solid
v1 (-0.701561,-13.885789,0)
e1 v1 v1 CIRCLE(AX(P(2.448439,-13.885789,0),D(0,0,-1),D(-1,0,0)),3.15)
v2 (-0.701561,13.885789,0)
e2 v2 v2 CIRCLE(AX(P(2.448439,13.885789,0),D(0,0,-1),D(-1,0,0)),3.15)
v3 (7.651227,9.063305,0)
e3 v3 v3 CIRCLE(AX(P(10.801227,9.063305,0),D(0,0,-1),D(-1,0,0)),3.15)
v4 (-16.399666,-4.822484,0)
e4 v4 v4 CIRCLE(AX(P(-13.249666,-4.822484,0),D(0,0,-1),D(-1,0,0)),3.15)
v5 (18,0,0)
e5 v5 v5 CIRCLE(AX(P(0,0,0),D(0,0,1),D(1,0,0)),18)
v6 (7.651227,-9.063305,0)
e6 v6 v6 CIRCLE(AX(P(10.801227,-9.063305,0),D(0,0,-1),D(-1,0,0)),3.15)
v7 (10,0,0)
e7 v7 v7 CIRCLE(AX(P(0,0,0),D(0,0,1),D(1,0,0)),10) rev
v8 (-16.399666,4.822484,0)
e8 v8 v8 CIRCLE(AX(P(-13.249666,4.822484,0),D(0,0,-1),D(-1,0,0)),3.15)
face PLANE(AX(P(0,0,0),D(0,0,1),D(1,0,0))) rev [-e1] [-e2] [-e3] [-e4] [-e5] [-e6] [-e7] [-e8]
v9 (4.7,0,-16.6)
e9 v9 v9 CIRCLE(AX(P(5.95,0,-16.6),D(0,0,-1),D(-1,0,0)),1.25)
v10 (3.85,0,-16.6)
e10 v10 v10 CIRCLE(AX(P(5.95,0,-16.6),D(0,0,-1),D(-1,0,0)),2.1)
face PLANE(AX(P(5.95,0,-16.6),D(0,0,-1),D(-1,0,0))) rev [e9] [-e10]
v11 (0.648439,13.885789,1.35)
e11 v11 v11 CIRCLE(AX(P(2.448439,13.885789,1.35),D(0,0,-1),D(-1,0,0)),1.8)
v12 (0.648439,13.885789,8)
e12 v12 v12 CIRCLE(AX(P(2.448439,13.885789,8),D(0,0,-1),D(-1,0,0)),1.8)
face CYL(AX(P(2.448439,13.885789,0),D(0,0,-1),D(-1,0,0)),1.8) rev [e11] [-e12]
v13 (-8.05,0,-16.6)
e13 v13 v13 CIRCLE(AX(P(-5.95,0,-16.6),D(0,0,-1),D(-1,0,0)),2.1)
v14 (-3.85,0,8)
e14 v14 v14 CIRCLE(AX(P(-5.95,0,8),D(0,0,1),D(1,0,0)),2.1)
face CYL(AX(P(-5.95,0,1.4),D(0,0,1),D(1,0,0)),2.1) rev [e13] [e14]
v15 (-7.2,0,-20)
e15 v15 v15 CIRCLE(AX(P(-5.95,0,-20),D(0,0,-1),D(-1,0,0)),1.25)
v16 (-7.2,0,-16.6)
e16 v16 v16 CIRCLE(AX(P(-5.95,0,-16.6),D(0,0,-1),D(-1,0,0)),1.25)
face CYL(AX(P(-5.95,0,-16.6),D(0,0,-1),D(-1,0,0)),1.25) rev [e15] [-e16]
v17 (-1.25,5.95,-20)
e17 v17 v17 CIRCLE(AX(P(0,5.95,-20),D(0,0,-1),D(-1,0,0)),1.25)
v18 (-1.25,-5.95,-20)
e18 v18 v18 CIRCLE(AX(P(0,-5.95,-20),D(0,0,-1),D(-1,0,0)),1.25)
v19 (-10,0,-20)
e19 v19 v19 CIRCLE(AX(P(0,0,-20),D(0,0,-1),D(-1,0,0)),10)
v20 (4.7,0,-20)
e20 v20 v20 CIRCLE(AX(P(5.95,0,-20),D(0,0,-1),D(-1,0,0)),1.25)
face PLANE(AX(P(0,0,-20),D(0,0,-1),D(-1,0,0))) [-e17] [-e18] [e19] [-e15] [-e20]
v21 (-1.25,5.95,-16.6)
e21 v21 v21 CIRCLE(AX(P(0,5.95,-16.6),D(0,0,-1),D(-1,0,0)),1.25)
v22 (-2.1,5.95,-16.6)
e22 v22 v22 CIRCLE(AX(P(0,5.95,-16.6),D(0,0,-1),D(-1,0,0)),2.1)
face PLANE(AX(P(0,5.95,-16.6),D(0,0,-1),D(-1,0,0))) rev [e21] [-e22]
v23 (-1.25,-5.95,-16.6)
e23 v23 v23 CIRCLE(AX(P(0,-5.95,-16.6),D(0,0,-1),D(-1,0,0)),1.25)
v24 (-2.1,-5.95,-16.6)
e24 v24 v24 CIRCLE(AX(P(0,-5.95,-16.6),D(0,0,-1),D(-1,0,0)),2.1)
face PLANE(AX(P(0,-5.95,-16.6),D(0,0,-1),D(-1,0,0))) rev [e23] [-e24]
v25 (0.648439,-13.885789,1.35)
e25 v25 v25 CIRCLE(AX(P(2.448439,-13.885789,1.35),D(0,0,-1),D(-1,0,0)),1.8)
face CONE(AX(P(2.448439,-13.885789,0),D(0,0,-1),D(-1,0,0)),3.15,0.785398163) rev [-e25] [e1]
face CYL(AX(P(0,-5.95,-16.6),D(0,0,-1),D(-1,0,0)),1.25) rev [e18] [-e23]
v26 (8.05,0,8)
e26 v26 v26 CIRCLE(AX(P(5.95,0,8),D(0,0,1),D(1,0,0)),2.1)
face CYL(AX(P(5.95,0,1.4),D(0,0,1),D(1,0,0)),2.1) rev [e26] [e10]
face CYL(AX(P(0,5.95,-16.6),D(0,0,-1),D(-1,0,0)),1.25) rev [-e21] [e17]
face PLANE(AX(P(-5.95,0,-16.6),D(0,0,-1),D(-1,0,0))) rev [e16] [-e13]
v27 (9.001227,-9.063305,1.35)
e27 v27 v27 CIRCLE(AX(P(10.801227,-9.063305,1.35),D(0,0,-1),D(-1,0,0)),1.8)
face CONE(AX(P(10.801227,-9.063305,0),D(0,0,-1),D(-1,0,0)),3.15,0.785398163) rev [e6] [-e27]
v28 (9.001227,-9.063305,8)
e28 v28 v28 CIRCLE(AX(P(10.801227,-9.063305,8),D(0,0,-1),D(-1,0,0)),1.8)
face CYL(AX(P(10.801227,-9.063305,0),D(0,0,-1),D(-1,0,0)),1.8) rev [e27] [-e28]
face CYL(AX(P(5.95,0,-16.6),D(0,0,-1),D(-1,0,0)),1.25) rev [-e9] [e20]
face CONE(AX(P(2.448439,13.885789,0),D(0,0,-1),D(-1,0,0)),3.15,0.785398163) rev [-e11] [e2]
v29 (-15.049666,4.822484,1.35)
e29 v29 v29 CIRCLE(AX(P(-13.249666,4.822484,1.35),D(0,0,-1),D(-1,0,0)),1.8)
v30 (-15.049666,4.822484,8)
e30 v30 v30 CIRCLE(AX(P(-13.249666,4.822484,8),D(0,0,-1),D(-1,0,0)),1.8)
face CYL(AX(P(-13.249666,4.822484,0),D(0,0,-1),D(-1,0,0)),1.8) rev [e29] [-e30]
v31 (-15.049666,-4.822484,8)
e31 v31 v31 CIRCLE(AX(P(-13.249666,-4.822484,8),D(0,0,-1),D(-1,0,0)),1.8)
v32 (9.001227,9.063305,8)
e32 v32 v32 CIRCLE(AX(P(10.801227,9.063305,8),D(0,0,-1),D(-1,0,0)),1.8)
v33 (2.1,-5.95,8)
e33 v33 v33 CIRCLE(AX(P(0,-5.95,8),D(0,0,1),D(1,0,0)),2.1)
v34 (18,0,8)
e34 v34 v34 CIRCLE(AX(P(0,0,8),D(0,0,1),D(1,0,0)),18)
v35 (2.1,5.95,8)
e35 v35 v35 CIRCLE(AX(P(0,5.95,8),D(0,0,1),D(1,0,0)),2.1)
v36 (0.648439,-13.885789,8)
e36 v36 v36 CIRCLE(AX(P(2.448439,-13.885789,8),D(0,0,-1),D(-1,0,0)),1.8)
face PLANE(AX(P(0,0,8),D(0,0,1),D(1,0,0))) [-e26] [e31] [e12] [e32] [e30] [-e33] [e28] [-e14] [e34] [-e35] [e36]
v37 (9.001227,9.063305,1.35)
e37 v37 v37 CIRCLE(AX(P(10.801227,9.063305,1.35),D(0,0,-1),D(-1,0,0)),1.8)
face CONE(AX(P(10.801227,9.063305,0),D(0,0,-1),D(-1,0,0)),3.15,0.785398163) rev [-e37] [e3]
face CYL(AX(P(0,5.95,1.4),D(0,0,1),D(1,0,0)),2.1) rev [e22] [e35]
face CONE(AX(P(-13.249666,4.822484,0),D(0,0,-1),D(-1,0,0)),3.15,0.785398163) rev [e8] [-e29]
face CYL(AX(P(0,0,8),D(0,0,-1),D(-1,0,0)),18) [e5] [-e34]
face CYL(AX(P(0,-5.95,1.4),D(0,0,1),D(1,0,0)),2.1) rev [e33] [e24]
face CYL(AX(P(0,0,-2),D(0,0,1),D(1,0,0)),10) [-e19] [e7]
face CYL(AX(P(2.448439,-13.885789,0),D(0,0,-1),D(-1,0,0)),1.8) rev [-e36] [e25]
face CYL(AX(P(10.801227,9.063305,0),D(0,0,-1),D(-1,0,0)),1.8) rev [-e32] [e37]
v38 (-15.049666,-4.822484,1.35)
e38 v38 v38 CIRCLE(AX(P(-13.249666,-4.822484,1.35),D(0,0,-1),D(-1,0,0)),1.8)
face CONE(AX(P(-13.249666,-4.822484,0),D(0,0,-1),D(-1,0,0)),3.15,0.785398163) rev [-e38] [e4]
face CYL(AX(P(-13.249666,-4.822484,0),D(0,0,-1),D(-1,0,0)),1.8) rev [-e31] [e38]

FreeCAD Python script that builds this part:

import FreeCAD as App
import Part
import Sketcher
from FreeCAD import Vector
Q = App.Units.Quantity

doc = App.newDocument("Part")
body = doc.addObject("PartDesign::Body", "Body")

# Sketch on XY plane
sketch1 = body.newObject("Sketcher::SketchObject", "Sketch")
sketch1.AttachmentSupport = (doc.getObject("XY_Plane"), [""])
sketch1.MapMode = "FlatFace"
sketch1.addGeometry([
    Part.Circle(Vector(0, 0, 0), Vector(0, 0, 1), 18),  # 0
    Part.Circle(Vector(-13.2, -4.8, 0), Vector(0, 0, 1), 1.6),  # 1
    Part.Circle(Vector(2.4, -13.9, 0), Vector(0, 0, 1), 1.6),  # 2
    Part.Circle(Vector(10.8, -9.1, 0), Vector(0, 0, 1), 1.6),  # 3
    Part.Circle(Vector(0, -6, 0), Vector(0, 0, 1), 1.3),  # 4
    Part.Circle(Vector(-13.2, 4.8, 0), Vector(0, 0, 1), 1.6),  # 5
    Part.Circle(Vector(-6, 0, 0), Vector(0, 0, 1), 1.3),  # 6
    Part.Circle(Vector(0, 6, 0), Vector(0, 0, 1), 1.3),  # 7
    Part.Circle(Vector(6, 0, 0), Vector(0, 0, 1), 1.3),  # 8
    Part.Circle(Vector(2.4, 13.9, 0), Vector(0, 0, 1), 1.6),  # 9
    Part.Circle(Vector(10.8, 9.1, 0), Vector(0, 0, 1), 1.6),  # 10
], False)
sketch1.addConstraint([
    Sketcher.Constraint("Coincident", 0, 3, -1, 1),
    Sketcher.Constraint("Equal", 1, 2),
    Sketcher.Constraint("Equal", 2, 3),
    Sketcher.Constraint("Equal", 3, 5),
    Sketcher.Constraint("Equal", 4, 6),
    Sketcher.Constraint("Equal", 6, 7),
    Sketcher.Constraint("Equal", 7, 8),
    Sketcher.Constraint("Equal", 5, 9),
    Sketcher.Constraint("Equal", 9, 10),
    Sketcher.Constraint("Symmetric", 4, 3, 7, 3, -1, 1),
    Sketcher.Constraint("Symmetric", 6, 3, 8, 3, -1, 1),
    Sketcher.Constraint("Symmetric", 1, 3, 5, 3, -1),
    Sketcher.Constraint("Symmetric", 2, 3, 9, 3, -1),
    Sketcher.Constraint("Symmetric", 3, 3, 10, 3, -1),
    Sketcher.Constraint("PointOnObject", 4, 3, -2),
    Sketcher.Constraint("PointOnObject", 6, 3, -1),
    Sketcher.Constraint("Diameter", 0, Q("36 mm")),
    Sketcher.Constraint("Diameter", 1, Q("3.2 mm")),
    Sketcher.Constraint("Diameter", 4, Q("2.6 mm")),
    Sketcher.Constraint("DistanceY", 4, 3, 7, 3, Q("11.9 mm")),
    Sketcher.Constraint("DistanceX", 6, 3, 8, 3, Q("11.9 mm")),
    Sketcher.Constraint("DistanceX", -1, 1, 2, 3, Q("2.448439 mm")),
    Sketcher.Constraint("DistanceY", 2, 3, -1, 1, Q("13.885789 mm")),
    Sketcher.Constraint("DistanceY", 3, 3, 1, 3, Q("4.240821 mm")),
    Sketcher.Constraint("DistanceY", 1, 3, 5, 3, Q("9.644968 mm")),
    Sketcher.Constraint("DistanceX", 1, 3, -1, 1, Q("13.249666 mm")),
    Sketcher.Constraint("DistanceX", -1, 1, 3, 3, Q("10.801227 mm")),
])
pad1 = body.newObject("PartDesign::Pad", "Pad")
pad1.Profile = sketch1
pad1.Length = 8

# Sketch on XY plane
sketch2 = body.newObject("Sketcher::SketchObject", "Sketch001")
sketch2.AttachmentSupport = (doc.getObject("XY_Plane"), [""])
sketch2.MapMode = "FlatFace"
sketch2.AttachmentOffset = App.Placement(Vector(0, 0, 8), App.Rotation())
sketch2.addGeometry([
    Part.Circle(Vector(0, 6, 0), Vector(0, 0, 1), 2.1),
    Part.Circle(Vector(0, -6, 0), Vector(0, 0, 1), 2.1),
    Part.Circle(Vector(6, 0, 0), Vector(0, 0, 1), 2.1),
    Part.Circle(Vector(-6, 0, 0), Vector(0, 0, 1), 2.1),
], False)
sketch2.addConstraint([
    Sketcher.Constraint("Equal", 0, 1),
    Sketcher.Constraint("Equal", 1, 2),
    Sketcher.Constraint("Equal", 2, 3),
    Sketcher.Constraint("Symmetric", 0, 3, 1, 3, -1, 1),
    Sketcher.Constraint("Symmetric", 2, 3, 3, 3, -1, 1),
    Sketcher.Constraint("PointOnObject", 0, 3, -2),
    Sketcher.Constraint("PointOnObject", 2, 3, -1),
    Sketcher.Constraint("Diameter", 0, Q("4.2 mm")),
    Sketcher.Constraint("DistanceY", 1, 3, 0, 3, Q("11.9 mm")),
    Sketcher.Constraint("DistanceX", 3, 3, 2, 3, Q("11.9 mm")),
])
pocket1 = body.newObject("PartDesign::Pocket", "Pocket")
pocket1.Profile = sketch2
pocket1.Length = 6.6

# Sketch on XY plane
sketch3 = body.newObject("Sketcher::SketchObject", "Sketch002")
sketch3.AttachmentSupport = (doc.getObject("XY_Plane"), [""])
sketch3.MapMode = "FlatFace"
sketch3.addGeometry([
    Part.Circle(Vector(2.4, 13.9, 0), Vector(0, 0, 1), 1.8),  # 0
    Part.Circle(Vector(-13.2, 4.8, 0), Vector(0, 0, 1), 1.8),  # 1
    Part.Circle(Vector(-13.2, -4.8, 0), Vector(0, 0, 1), 1.8),  # 2
    Part.Circle(Vector(2.4, -13.9, 0), Vector(0, 0, 1), 1.8),  # 3
    Part.Circle(Vector(10.8, -9.1, 0), Vector(0, 0, 1), 1.8),  # 4
    Part.Circle(Vector(10.8, 9.1, 0), Vector(0, 0, 1), 1.8),  # 5
], False)
sketch3.addConstraint([
    Sketcher.Constraint("Equal", 0, 1),
    Sketcher.Constraint("Equal", 1, 2),
    Sketcher.Constraint("Equal", 2, 3),
    Sketcher.Constraint("Equal", 3, 4),
    Sketcher.Constraint("Equal", 4, 5),
    Sketcher.Constraint("Symmetric", 1, 3, 2, 3, -1),
    Sketcher.Constraint("Symmetric", 0, 3, 3, 3, -1),
    Sketcher.Constraint("Symmetric", 4, 3, 5, 3, -1),
    Sketcher.Constraint("Diameter", 0, Q("3.6 mm")),
    Sketcher.Constraint("DistanceX", -1, 1, 0, 3, Q("2.448439 mm")),
    Sketcher.Constraint("DistanceY", -1, 1, 0, 3, Q("13.885789 mm")),
    Sketcher.Constraint("DistanceY", 2, 3, 1, 3, Q("9.644968 mm")),
    Sketcher.Constraint("DistanceY", 4, 3, 2, 3, Q("4.240821 mm")),
    Sketcher.Constraint("DistanceX", 1, 3, -1, 1, Q("13.249666 mm")),
    Sketcher.Constraint("DistanceX", -1, 1, 4, 3, Q("10.801227 mm")),
])
doc.recompute()
hole = body.newObject("PartDesign::Hole", "Hole")
hole.Profile = sketch3
hole.ThreadType = "None"
hole.Diameter = 3.6
hole.DepthType = "ThroughAll"
hole.HoleCutType = "Countersink"
hole.HoleCutDiameter = 6.3
hole.HoleCutCountersinkAngle = 90
hole.Reversed = True

# Sketch on XY plane
sketch4 = body.newObject("Sketcher::SketchObject", "Sketch003")
sketch4.AttachmentSupport = (doc.getObject("XY_Plane"), [""])
sketch4.MapMode = "FlatFace"
sketch4.AttachmentOffset = App.Placement(Vector(0, 0, -2), App.Rotation())
sketch4.addGeometry([
    Part.Circle(Vector(0, 0, 0), Vector(0, 0, 1), 10),  # 0
    Part.Circle(Vector(0, 6, 0), Vector(0, 0, 1), 1.3),  # 1
    Part.Circle(Vector(-6, 0, 0), Vector(0, 0, 1), 1.3),  # 2
    Part.Circle(Vector(0, -6, 0), Vector(0, 0, 1), 1.3),  # 3
    Part.Circle(Vector(6, 0, 0), Vector(0, 0, 1), 1.3),  # 4
], False)
sketch4.addConstraint([
    Sketcher.Constraint("Coincident", 0, 3, -1, 1),
    Sketcher.Constraint("Equal", 1, 2),
    Sketcher.Constraint("Equal", 2, 3),
    Sketcher.Constraint("Equal", 3, 4),
    Sketcher.Constraint("Symmetric", 1, 3, 3, 3, -1, 1),
    Sketcher.Constraint("Symmetric", 2, 3, 4, 3, -1, 1),
    Sketcher.Constraint("PointOnObject", 1, 3, -2),
    Sketcher.Constraint("PointOnObject", 2, 3, -1),
    Sketcher.Constraint("Diameter", 0, Q("20 mm")),
    Sketcher.Constraint("Diameter", 1, Q("2.6 mm")),
    Sketcher.Constraint("DistanceY", 3, 3, 1, 3, Q("11.9 mm")),
    Sketcher.Constraint("DistanceX", 2, 3, 4, 3, Q("11.9 mm")),
])
pad2 = body.newObject("PartDesign::Pad", "Pad001")
pad2.Profile = sketch4
pad2.Length = 2

# Sketch on XY plane
sketch5 = body.newObject("Sketcher::SketchObject", "Sketch004")
sketch5.AttachmentSupport = (doc.getObject("XY_Plane"), [""])
sketch5.MapMode = "FlatFace"
sketch5.AttachmentOffset = App.Placement(Vector(0, 0, -2), App.Rotation())
sketch5.addGeometry([
    Part.Circle(Vector(0, 0, 0), Vector(0, 0, 1), 10),  # 0
    Part.Circle(Vector(-6, 0, 0), Vector(0, 0, 1), 2.1),  # 1
    Part.Circle(Vector(0, 6, 0), Vector(0, 0, 1), 2.1),  # 2
    Part.Circle(Vector(0, -6, 0), Vector(0, 0, 1), 2.1),  # 3
    Part.Circle(Vector(6, 0, 0), Vector(0, 0, 1), 2.1),  # 4
], False)
sketch5.addConstraint([
    Sketcher.Constraint("Coincident", 0, 3, -1, 1),
    Sketcher.Constraint("Equal", 1, 2),
    Sketcher.Constraint("Equal", 2, 3),
    Sketcher.Constraint("Equal", 3, 4),
    Sketcher.Constraint("Symmetric", 2, 3, 3, 3, -1, 1),
    Sketcher.Constraint("Symmetric", 1, 3, 4, 3, -1, 1),
    Sketcher.Constraint("PointOnObject", 1, 3, -1),
    Sketcher.Constraint("PointOnObject", 2, 3, -2),
    Sketcher.Constraint("Diameter", 0, Q("20 mm")),
    Sketcher.Constraint("Diameter", 1, Q("4.2 mm")),
    Sketcher.Constraint("DistanceY", 3, 3, 2, 3, Q("11.9 mm")),
    Sketcher.Constraint("DistanceX", 1, 3, 4, 3, Q("11.9 mm")),
])
pad3 = body.newObject("PartDesign::Pad", "Pad002")
pad3.Profile = sketch5
pad3.Length = 18
pad3.Reversed = True

# Sketch on XY plane
sketch6 = body.newObject("Sketcher::SketchObject", "Sketch005")
sketch6.AttachmentSupport = (doc.getObject("XY_Plane"), [""])
sketch6.MapMode = "FlatFace"
sketch6.AttachmentOffset = App.Placement(Vector(0, 0, -16.6), App.Rotation())
sketch6.addGeometry([
    Part.Circle(Vector(-6, 0, 0), Vector(0, 0, 1), 2.1),  # 0
    Part.Circle(Vector(-6, 0, 0), Vector(0, 0, 1), 1.2),  # 1
    Part.Circle(Vector(0, -6, 0), Vector(0, 0, 1), 2.1),  # 2
    Part.Circle(Vector(0, -6, 0), Vector(0, 0, 1), 1.2),  # 3
    Part.Circle(Vector(6, 0, 0), Vector(0, 0, 1), 2.1),  # 4
    Part.Circle(Vector(6, 0, 0), Vector(0, 0, 1), 1.2),  # 5
    Part.Circle(Vector(0, 6, 0), Vector(0, 0, 1), 2.1),  # 6
    Part.Circle(Vector(0, 6, 0), Vector(0, 0, 1), 1.2),  # 7
], False)
sketch6.addConstraint([
    Sketcher.Constraint("Coincident", 1, 3, 0, 3),
    Sketcher.Constraint("Coincident", 3, 3, 2, 3),
    Sketcher.Constraint("Coincident", 5, 3, 4, 3),
    Sketcher.Constraint("Coincident", 7, 3, 6, 3),
    Sketcher.Constraint("Equal", 0, 2),
    Sketcher.Constraint("Equal", 1, 3),
    Sketcher.Constraint("Equal", 2, 4),
    Sketcher.Constraint("Equal", 3, 5),
    Sketcher.Constraint("Equal", 4, 6),
    Sketcher.Constraint("Equal", 5, 7),
    Sketcher.Constraint("Symmetric", 0, 3, 4, 3, -1, 1),
    Sketcher.Constraint("Symmetric", 2, 3, 6, 3, -1, 1),
    Sketcher.Constraint("PointOnObject", 0, 3, -1),
    Sketcher.Constraint("PointOnObject", 2, 3, -2),
    Sketcher.Constraint("Diameter", 0, Q("4.2 mm")),
    Sketcher.Constraint("Diameter", 1, Q("2.5 mm")),
    Sketcher.Constraint("DistanceX", 0, 3, 4, 3, Q("11.9 mm")),
    Sketcher.Constraint("DistanceY", 2, 3, 6, 3, Q("11.9 mm")),
])
pad4 = body.newObject("PartDesign::Pad", "Pad003")
pad4.Profile = sketch6
pad4.Length = 3.4
pad4.Reversed = True

# Sketch on XY plane
sketch7 = body.newObject("Sketcher::SketchObject", "Sketch006")
sketch7.AttachmentSupport = (doc.getObject("XY_Plane"), [""])
sketch7.MapMode = "FlatFace"
sketch7.AttachmentOffset = App.Placement(Vector(0, 0, 1.4), App.Rotation())
sketch7.addGeometry([
    Part.Circle(Vector(6, 0, 0), Vector(0, 0, 1), 2.1),
    Part.Circle(Vector(0, -6, 0), Vector(0, 0, 1), 2.1),
    Part.Circle(Vector(0, 6, 0), Vector(0, 0, 1), 2.1),
    Part.Circle(Vector(-6, 0, 0), Vector(0, 0, 1), 2.1),
], False)
sketch7.addConstraint([
    Sketcher.Constraint("Equal", 0, 1),
    Sketcher.Constraint("Equal", 1, 2),
    Sketcher.Constraint("Equal", 2, 3),
    Sketcher.Constraint("Symmetric", 1, 3, 2, 3, -1, 1),
    Sketcher.Constraint("Symmetric", 0, 3, 3, 3, -1, 1),
    Sketcher.Constraint("PointOnObject", 0, 3, -1),
    Sketcher.Constraint("PointOnObject", 1, 3, -2),
    Sketcher.Constraint("Diameter", 0, Q("4.2 mm")),
    Sketcher.Constraint("DistanceY", 1, 3, 2, 3, Q("11.9 mm")),
    Sketcher.Constraint("DistanceX", 3, 3, 0, 3, Q("11.9 mm")),
])
pocket2 = body.newObject("PartDesign::Pocket", "Pocket001")
pocket2.Profile = sketch7
pocket2.Length = 3.4

doc.recompute()
